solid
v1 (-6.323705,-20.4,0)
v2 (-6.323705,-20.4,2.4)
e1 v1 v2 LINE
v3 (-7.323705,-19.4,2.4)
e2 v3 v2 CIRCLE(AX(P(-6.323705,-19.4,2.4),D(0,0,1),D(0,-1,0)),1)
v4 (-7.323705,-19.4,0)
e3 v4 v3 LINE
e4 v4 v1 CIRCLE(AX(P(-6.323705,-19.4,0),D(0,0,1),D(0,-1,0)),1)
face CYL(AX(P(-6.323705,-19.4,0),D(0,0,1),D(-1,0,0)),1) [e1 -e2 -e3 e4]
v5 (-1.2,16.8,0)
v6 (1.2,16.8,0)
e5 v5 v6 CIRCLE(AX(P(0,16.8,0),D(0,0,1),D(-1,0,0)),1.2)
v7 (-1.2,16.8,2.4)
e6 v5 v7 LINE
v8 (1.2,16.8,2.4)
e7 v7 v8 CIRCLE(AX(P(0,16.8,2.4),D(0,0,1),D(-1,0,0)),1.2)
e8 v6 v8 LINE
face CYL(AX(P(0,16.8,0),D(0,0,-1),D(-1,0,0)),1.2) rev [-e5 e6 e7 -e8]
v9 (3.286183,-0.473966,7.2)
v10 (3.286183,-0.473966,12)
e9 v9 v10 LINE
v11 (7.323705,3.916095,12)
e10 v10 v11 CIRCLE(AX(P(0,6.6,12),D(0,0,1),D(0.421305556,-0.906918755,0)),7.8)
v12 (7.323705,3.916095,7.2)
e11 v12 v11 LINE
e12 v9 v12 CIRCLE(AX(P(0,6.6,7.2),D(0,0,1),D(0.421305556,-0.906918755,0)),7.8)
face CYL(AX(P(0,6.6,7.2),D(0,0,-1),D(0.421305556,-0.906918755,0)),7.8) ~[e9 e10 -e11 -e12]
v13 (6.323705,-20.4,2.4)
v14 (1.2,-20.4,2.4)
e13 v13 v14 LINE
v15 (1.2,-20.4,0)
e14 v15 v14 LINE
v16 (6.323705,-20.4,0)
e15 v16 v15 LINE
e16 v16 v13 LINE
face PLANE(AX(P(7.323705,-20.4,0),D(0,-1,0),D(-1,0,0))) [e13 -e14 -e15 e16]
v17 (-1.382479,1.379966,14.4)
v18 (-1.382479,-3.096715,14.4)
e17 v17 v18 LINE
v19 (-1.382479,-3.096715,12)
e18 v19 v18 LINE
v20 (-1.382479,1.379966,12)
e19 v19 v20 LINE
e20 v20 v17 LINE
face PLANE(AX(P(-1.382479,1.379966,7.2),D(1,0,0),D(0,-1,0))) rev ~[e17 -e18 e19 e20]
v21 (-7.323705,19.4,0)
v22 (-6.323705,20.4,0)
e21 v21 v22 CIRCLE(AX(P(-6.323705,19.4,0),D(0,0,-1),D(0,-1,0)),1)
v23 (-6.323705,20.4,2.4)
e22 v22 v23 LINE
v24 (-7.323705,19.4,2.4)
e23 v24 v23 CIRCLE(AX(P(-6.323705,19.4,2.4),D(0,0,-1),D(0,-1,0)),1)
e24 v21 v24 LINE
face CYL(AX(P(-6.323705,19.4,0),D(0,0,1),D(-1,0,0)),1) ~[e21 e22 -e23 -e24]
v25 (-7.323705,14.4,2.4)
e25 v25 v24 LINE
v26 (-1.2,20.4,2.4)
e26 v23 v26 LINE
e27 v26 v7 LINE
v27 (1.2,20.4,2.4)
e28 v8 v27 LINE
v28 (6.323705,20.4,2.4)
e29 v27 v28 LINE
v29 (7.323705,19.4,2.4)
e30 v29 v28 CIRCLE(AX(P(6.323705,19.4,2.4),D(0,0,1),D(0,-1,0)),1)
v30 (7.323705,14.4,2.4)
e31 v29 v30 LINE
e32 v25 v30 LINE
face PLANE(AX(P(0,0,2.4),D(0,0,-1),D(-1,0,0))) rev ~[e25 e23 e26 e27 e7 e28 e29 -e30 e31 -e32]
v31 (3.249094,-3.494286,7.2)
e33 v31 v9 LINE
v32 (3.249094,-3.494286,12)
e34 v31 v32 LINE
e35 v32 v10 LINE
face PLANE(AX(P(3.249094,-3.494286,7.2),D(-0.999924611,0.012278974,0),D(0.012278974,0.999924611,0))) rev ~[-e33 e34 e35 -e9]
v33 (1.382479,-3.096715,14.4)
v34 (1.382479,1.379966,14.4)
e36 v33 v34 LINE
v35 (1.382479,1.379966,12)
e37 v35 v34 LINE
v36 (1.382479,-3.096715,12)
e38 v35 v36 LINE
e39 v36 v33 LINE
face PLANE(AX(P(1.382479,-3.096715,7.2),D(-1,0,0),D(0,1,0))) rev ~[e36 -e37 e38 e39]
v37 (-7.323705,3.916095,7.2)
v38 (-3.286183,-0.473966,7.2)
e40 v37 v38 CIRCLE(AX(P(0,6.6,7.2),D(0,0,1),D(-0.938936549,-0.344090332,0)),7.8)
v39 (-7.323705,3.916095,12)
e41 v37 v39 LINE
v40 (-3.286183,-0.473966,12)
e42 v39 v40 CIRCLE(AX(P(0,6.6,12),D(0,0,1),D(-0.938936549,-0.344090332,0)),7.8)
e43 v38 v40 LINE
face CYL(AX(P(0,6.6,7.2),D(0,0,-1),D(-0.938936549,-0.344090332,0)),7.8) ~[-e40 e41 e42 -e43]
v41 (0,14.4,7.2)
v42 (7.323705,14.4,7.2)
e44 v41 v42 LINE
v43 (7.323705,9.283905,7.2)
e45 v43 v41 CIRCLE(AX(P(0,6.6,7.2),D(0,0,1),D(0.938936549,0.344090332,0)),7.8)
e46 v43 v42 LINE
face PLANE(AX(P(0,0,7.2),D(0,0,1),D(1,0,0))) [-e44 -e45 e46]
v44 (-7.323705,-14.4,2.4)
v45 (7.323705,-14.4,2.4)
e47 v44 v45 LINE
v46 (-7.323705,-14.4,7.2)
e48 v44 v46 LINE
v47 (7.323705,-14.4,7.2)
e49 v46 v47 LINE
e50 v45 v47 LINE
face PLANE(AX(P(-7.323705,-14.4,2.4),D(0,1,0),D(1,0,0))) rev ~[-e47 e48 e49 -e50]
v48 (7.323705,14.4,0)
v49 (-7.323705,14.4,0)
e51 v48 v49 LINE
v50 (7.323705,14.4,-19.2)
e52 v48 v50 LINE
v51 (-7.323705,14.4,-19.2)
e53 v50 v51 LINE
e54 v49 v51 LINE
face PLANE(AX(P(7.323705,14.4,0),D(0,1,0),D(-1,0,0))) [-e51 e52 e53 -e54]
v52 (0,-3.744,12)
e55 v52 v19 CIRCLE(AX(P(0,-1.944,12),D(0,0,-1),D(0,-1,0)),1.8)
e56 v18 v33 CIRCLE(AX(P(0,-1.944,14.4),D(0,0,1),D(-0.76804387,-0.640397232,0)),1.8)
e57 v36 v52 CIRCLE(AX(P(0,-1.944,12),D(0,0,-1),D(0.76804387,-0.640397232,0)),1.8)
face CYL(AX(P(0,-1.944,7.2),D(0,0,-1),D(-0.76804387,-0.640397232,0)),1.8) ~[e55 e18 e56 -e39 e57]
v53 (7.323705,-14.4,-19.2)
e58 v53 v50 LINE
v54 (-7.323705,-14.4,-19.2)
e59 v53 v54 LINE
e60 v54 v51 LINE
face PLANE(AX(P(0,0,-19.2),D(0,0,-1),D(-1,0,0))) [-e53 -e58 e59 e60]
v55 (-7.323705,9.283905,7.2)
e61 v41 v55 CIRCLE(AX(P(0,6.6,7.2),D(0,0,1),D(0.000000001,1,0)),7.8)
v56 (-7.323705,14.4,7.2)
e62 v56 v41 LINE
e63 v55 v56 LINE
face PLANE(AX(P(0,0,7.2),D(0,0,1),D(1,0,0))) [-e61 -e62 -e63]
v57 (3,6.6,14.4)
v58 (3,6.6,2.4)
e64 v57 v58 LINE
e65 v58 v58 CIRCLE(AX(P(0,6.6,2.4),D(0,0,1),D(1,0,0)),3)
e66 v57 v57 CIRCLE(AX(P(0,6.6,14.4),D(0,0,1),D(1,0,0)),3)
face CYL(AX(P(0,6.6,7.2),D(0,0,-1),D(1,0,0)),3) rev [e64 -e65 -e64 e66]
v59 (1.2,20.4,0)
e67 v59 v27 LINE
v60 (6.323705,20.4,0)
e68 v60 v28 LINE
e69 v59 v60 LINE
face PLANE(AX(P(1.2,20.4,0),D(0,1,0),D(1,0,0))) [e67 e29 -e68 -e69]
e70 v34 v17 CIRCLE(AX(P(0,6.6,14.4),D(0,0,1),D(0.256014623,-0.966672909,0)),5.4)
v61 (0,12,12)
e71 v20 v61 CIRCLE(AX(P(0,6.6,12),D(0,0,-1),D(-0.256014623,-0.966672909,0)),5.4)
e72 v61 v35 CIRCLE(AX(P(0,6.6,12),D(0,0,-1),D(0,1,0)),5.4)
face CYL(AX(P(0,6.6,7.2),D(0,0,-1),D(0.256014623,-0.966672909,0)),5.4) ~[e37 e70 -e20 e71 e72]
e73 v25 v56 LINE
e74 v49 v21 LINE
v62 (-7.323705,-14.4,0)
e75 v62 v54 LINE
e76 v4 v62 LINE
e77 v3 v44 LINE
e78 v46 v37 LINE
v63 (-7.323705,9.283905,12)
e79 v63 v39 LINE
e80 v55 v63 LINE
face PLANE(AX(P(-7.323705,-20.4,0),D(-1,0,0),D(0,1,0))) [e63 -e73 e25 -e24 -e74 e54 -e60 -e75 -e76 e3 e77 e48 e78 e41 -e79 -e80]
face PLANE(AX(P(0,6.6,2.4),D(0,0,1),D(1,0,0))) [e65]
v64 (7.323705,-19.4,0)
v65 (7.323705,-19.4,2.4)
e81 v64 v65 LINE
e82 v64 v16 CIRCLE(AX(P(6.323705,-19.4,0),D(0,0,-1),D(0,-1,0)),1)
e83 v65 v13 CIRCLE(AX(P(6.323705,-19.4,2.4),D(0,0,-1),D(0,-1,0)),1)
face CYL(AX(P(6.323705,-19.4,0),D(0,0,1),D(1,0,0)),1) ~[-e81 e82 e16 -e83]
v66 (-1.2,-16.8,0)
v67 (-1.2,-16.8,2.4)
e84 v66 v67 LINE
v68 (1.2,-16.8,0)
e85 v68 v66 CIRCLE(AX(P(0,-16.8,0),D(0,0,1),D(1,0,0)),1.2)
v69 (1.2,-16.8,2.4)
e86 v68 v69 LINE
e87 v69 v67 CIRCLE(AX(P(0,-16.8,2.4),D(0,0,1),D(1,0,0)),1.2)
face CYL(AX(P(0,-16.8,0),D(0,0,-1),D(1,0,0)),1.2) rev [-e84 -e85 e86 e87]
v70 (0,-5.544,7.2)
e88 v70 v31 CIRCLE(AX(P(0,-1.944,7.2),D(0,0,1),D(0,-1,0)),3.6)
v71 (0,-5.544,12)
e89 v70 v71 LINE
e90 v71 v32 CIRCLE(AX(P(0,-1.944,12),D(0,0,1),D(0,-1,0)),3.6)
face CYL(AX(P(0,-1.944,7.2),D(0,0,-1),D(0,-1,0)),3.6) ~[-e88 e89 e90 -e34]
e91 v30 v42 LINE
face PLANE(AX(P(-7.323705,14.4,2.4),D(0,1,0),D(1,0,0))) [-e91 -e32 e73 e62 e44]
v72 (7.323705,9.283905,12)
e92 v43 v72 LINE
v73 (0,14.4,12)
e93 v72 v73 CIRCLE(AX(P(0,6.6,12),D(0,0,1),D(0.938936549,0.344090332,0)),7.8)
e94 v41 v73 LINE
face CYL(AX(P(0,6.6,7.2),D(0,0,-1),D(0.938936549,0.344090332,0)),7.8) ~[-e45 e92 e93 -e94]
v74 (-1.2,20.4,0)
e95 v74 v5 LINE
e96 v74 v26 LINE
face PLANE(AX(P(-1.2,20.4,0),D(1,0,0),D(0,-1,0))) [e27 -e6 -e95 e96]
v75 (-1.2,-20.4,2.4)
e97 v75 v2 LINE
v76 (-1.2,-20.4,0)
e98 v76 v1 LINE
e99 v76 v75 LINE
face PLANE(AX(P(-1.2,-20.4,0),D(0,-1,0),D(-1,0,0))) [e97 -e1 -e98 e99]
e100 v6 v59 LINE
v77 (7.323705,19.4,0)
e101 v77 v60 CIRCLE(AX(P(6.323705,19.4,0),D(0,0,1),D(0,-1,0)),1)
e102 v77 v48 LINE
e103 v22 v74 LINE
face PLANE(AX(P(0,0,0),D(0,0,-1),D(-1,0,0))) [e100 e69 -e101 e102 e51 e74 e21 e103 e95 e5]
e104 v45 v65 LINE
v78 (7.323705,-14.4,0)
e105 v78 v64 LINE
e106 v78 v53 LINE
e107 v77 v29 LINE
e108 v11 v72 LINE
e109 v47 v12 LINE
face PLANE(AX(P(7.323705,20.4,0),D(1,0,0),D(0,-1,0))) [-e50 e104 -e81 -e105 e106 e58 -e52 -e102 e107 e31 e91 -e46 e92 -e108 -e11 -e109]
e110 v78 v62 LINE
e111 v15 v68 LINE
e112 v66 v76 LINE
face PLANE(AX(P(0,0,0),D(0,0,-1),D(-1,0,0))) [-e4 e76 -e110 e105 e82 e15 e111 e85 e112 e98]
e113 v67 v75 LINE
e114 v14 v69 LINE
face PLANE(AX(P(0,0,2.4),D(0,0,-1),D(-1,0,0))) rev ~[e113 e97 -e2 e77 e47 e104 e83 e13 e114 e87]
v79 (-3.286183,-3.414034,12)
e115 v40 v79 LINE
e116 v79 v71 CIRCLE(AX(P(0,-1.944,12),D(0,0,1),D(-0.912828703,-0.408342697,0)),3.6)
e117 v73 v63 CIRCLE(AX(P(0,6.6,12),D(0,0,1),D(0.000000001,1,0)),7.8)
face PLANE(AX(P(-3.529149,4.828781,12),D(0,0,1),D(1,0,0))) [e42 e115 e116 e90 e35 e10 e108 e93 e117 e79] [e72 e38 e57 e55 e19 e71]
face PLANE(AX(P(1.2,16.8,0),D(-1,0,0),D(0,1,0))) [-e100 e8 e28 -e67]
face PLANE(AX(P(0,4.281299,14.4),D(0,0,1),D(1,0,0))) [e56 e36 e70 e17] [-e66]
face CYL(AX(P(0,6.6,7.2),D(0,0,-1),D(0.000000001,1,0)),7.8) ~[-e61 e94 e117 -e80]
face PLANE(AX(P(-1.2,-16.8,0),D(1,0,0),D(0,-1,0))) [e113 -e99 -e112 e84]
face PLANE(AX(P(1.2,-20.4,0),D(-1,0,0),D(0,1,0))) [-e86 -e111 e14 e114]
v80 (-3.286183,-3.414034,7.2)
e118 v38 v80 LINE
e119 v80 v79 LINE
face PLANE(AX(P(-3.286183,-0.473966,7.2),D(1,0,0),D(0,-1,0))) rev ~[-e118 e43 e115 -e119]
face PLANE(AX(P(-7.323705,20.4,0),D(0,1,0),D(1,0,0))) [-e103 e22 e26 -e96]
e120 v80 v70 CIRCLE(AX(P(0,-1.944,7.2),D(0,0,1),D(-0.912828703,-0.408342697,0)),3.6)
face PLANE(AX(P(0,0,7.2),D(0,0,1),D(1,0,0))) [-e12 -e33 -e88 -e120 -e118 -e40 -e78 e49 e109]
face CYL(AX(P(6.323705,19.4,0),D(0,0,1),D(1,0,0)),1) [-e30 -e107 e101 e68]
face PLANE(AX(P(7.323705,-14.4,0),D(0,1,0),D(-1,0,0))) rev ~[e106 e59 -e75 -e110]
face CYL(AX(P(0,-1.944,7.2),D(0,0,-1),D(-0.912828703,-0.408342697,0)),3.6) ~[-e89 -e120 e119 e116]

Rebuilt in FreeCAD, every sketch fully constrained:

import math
import FreeCAD as App
import Part
import Sketcher
Q = App.Units.Quantity


def edges_at(feature, points):
    """Names of the edges that pass closest to the given points."""
    edges = feature.Shape.Edges
    near = lambda p: min(range(len(edges)), key=lambda i: edges[i].distToShape(Part.Vertex(*p))[0])
    return sorted({f"Edge{near(p) + 1}" for p in points})

doc = App.newDocument("Part")
body = doc.addObject("PartDesign::Body", "Body")

sketch1 = body.newObject("Sketcher::SketchObject", "Sketch")
sketch1.AttachmentSupport = (doc.getObject("XY_Plane"), [""])
sketch1.MapMode = "FlatFace"
sketch1.addGeometry([
    Part.LineSegment(App.Vector(-1.2, 20.4, 0), App.Vector(-7.323705, 20.4, 0)),
    Part.LineSegment(App.Vector(-7.323705, 20.4, 0), App.Vector(-7.323705, -20.4, 0)),
    Part.LineSegment(App.Vector(-7.323705, -20.4, 0), App.Vector(-1.2, -20.4, 0)),
    Part.LineSegment(App.Vector(-1.2, -20.4, 0), App.Vector(-1.2, -16.8, 0)),
    Part.ArcOfCircle(Part.Circle(App.Vector(0, -16.8, 0), App.Vector(0, 0, 1), 1.2), math.radians(0), math.radians(180)),
    Part.LineSegment(App.Vector(1.2, -16.8, 0), App.Vector(1.2, -20.4, 0)),
    Part.LineSegment(App.Vector(1.2, -20.4, 0), App.Vector(7.323705, -20.4, 0)),
    Part.LineSegment(App.Vector(7.323705, -20.4, 0), App.Vector(7.323705, 20.4, 0)),
    Part.LineSegment(App.Vector(7.323705, 20.4, 0), App.Vector(1.2, 20.4, 0)),
    Part.LineSegment(App.Vector(1.2, 20.4, 0), App.Vector(1.2, 16.8, 0)),
    Part.ArcOfCircle(Part.Circle(App.Vector(0, 16.8, 0), App.Vector(0, 0, 1), 1.2), math.radians(180), math.radians(360)),
    Part.LineSegment(App.Vector(-1.2, 16.8, 0), App.Vector(-1.2, 20.4, 0)),
], False)
sketch1.addConstraint([
    Sketcher.Constraint("Coincident", 0, 2, 1, 1),
    Sketcher.Constraint("Coincident", 1, 2, 2, 1),
    Sketcher.Constraint("Coincident", 2, 2, 3, 1),
    Sketcher.Constraint("Tangent", 3, 2, 4, 2),
    Sketcher.Constraint("Tangent", 4, 1, 5, 1),
    Sketcher.Constraint("Coincident", 5, 2, 6, 1),
    Sketcher.Constraint("Coincident", 6, 2, 7, 1),
    Sketcher.Constraint("Coincident", 7, 2, 8, 1),
    Sketcher.Constraint("Coincident", 8, 2, 9, 1),
    Sketcher.Constraint("Tangent", 9, 2, 10, 2),
    Sketcher.Constraint("Tangent", 10, 1, 11, 1),
    Sketcher.Constraint("Coincident", 11, 2, 0, 1),
    Sketcher.Constraint("Horizontal", 0),
    Sketcher.Constraint("Vertical", 1),
    Sketcher.Constraint("Horizontal", 2),
    Sketcher.Constraint("Vertical", 3),
    Sketcher.Constraint("Vertical", 5),
    Sketcher.Constraint("Horizontal", 6),
    Sketcher.Constraint("Vertical", 7),
    Sketcher.Constraint("Horizontal", 8),
    Sketcher.Constraint("Vertical", 9),
    Sketcher.Constraint("Vertical", 11),
    Sketcher.Constraint("Equal", 4, 10),
    Sketcher.Constraint("Symmetric", 4, 3, 10, 3, -1, 1),
    Sketcher.Constraint("Symmetric", 0, 2, 6, 2, -1, 1),
    Sketcher.Constraint("Symmetric", 2, 2, 5, 2, -2),
    Sketcher.Constraint("Horizontal", 0, 2, 7, 2),
    Sketcher.Constraint("Radius", 4, Q("1.2 mm")),
    Sketcher.Constraint("DistanceY", 1, 2, 1, 1, Q("40.8 mm")),
    Sketcher.Constraint("DistanceY", 3, 1, 3, 2, Q("3.6 mm")),
    Sketcher.Constraint("DistanceX", 0, 2, 0, 1, Q("6.123705 mm")),
])
pad1 = body.newObject("PartDesign::Pad", "Pad")
pad1.Profile = sketch1
pad1.Length = 2.4

sketch2 = body.newObject("Sketcher::SketchObject", "Sketch001")
sketch2.AttachmentSupport = (doc.getObject("XY_Plane"), [""])
sketch2.MapMode = "FlatFace"
sketch2.AttachmentOffset = App.Placement(App.Vector(0, 0, 2.4), App.Rotation())
sketch2.addGeometry([
    Part.LineSegment(App.Vector(-7.323705, 14.4, 0), App.Vector(-7.323705, -14.4, 0)),
    Part.LineSegment(App.Vector(-7.323705, -14.4, 0), App.Vector(7.323705, -14.4, 0)),
    Part.LineSegment(App.Vector(7.323705, -14.4, 0), App.Vector(7.323705, 14.4, 0)),
    Part.LineSegment(App.Vector(7.323705, 14.4, 0), App.Vector(-7.323705, 14.4, 0)),
], False)
sketch2.addConstraint([
    Sketcher.Constraint("Coincident", 0, 2, 1, 1),
    Sketcher.Constraint("Coincident", 1, 2, 2, 1),
    Sketcher.Constraint("Coincident", 2, 2, 3, 1),
    Sketcher.Constraint("Coincident", 3, 2, 0, 1),
    Sketcher.Constraint("Vertical", 0),
    Sketcher.Constraint("Horizontal", 1),
    Sketcher.Constraint("Vertical", 2),
    Sketcher.Constraint("Horizontal", 3),
    Sketcher.Constraint("Symmetric", 0, 2, 2, 2, -1, 1),
    Sketcher.Constraint("DistanceY", 0, 2, 0, 1, Q("28.8 mm")),
    Sketcher.Constraint("DistanceX", 1, 1, 1, 2, Q("14.64741 mm")),
])
pad2 = body.newObject("PartDesign::Pad", "Pad001")
pad2.Profile = sketch2
pad2.Length = 4.8

sketch3 = body.newObject("Sketcher::SketchObject", "Sketch002")
sketch3.AttachmentSupport = (doc.getObject("XY_Plane"), [""])
sketch3.MapMode = "FlatFace"
sketch3.AttachmentOffset = App.Placement(App.Vector(0, 0, 7.2), App.Rotation())
sketch3.addGeometry([
    Part.ArcOfCircle(Part.Circle(App.Vector(0, 6.6, 0), App.Vector(0, 0, 1), 7.8), math.radians(90), math.radians(159.873724)),
    Part.LineSegment(App.Vector(-7.323705, 9.283905, 0), App.Vector(-7.323705, 3.916095, 0)),
    Part.ArcOfCircle(Part.Circle(App.Vector(0, 6.6, 0), App.Vector(0, 0, 1), 7.8), math.radians(-159.873724), math.radians(-114.91704)),
    Part.LineSegment(App.Vector(-3.286183, -0.473966, 0), App.Vector(-3.286183, -3.414034, 0)),
    Part.ArcOfCircle(Part.Circle(App.Vector(0, -1.944, 0), App.Vector(0, 0, 1), 3.6), math.radians(-155.899232), math.radians(-90)),
    Part.ArcOfCircle(Part.Circle(App.Vector(0, -1.944, 0), App.Vector(0, 0, 1), 3.6), math.radians(-90), math.radians(-25.50787)),
    Part.LineSegment(App.Vector(3.249094, -3.494286, 0), App.Vector(3.286183, -0.473966, 0)),
    Part.ArcOfCircle(Part.Circle(App.Vector(0, 6.6, 0), App.Vector(0, 0, 1), 7.8), math.radians(-65.08296), math.radians(-20.126276)),
    Part.LineSegment(App.Vector(7.323705, 3.916095, 0), App.Vector(7.323705, 9.283905, 0)),
    Part.ArcOfCircle(Part.Circle(App.Vector(0, 6.6, 0), App.Vector(0, 0, 1), 7.8), math.radians(20.126276), math.radians(90)),
    Part.ArcOfCircle(Part.Circle(App.Vector(0, -1.944, 0), App.Vector(0, 0, 1), 1.8), math.radians(-140.178554), math.radians(-90)),
    Part.LineSegment(App.Vector(-1.382479, -3.096715, 0), App.Vector(-1.382479, 1.379966, 0)),
    Part.ArcOfCircle(Part.Circle(App.Vector(0, 6.6, 0), App.Vector(0, 0, 1), 5.4), math.radians(90), math.radians(255.166285)),
    Part.ArcOfCircle(Part.Circle(App.Vector(0, 6.6, 0), App.Vector(0, 0, 1), 5.4), math.radians(-75.166285), math.radians(90)),
    Part.LineSegment(App.Vector(1.382479, 1.379966, 0), App.Vector(1.382479, -3.096715, 0)),
    Part.ArcOfCircle(Part.Circle(App.Vector(0, -1.944, 0), App.Vector(0, 0, 1), 1.8), math.radians(-90), math.radians(-39.821446)),
], False)
sketch3.addConstraint([
    Sketcher.Constraint("Coincident", 0, 2, 1, 1),
    Sketcher.Constraint("Coincident", 1, 2, 2, 1),
    Sketcher.Constraint("Coincident", 2, 2, 3, 1),
    Sketcher.Constraint("Coincident", 3, 2, 4, 1),
    Sketcher.Constraint("Tangent", 4, 2, 5, 1),
    Sketcher.Constraint("Coincident", 5, 2, 6, 1),
    Sketcher.Constraint("Coincident", 6, 2, 7, 1),
    Sketcher.Constraint("Coincident", 7, 2, 8, 1),
    Sketcher.Constraint("Coincident", 8, 2, 9, 1),
    Sketcher.Constraint("Tangent", 9, 2, 0, 1),
    Sketcher.Constraint("Coincident", 10, 1, 11, 1),
    Sketcher.Constraint("Coincident", 11, 2, 12, 2),
    Sketcher.Constraint("Tangent", 12, 1, 13, 2),
    Sketcher.Constraint("Coincident", 13, 1, 14, 1),
    Sketcher.Constraint("Coincident", 14, 2, 15, 2),
    Sketcher.Constraint("Tangent", 15, 1, 10, 2),
    Sketcher.Constraint("Vertical", 1),
    Sketcher.Constraint("Vertical", 3),
    Sketcher.Constraint("Vertical", 8),
    Sketcher.Constraint("Vertical", 11),
    Sketcher.Constraint("Vertical", 14),
    Sketcher.Constraint("Coincident", 2, 3, 0, 3),
    Sketcher.Constraint("Coincident", 7, 3, 0, 3),
    Sketcher.Constraint("Coincident", 10, 3, 4, 3),
    Sketcher.Constraint("Coincident", 12, 3, 0, 3),
    Sketcher.Constraint("Equal", 0, 2),
    Sketcher.Constraint("Equal", 4, 5),
    Sketcher.Constraint("Equal", 2, 7),
    Sketcher.Constraint("Equal", 7, 9),
    Sketcher.Constraint("Equal", 12, 13),
    Sketcher.Constraint("Equal", 10, 15),
    Sketcher.Constraint("Symmetric", 2, 2, 6, 2, -2),
    Sketcher.Constraint("Symmetric", 10, 1, 14, 2, -2),
    Sketcher.Constraint("PointOnObject", 4, 2, -2),
    Sketcher.Constraint("PointOnObject", 9, 2, -2),
    Sketcher.Constraint("PointOnObject", 12, 1, -2),
    Sketcher.Constraint("PointOnObject", 15, 1, -2),
    Sketcher.Constraint("Horizontal", 1, 2, 7, 2),
    Sketcher.Constraint("Radius", 0, Q("7.8 mm")),
    Sketcher.Constraint("Radius", 4, Q("3.6 mm")),
    Sketcher.Constraint("Radius", 10, Q("1.8 mm")),
    Sketcher.Constraint("Radius", 12, Q("5.4 mm")),
    Sketcher.Constraint("DistanceY", -1, 1, 12, 1, Q("12 mm")),
    Sketcher.Constraint("DistanceY", 4, 3, -1, 1, Q("1.944 mm")),
    Sketcher.Constraint("DistanceY", 1, 2, 1, 1, Q("5.367809 mm")),
    Sketcher.Constraint("DistanceY", 11, 1, 11, 2, Q("4.476681 mm")),
    Sketcher.Constraint("DistanceY", 3, 2, 3, 1, Q("2.940067 mm")),
    Sketcher.Constraint("DistanceX", 5, 2, 6, 2, Q("0.037089 mm")),
])
pad3 = body.newObject("PartDesign::Pad", "Pad002")
pad3.Profile = sketch3
pad3.Length = 4.8

sketch4 = body.newObject("Sketcher::SketchObject", "Sketch003")
sketch4.AttachmentSupport = (doc.getObject("XY_Plane"), [""])
sketch4.MapMode = "FlatFace"
sketch4.AttachmentOffset = App.Placement(App.Vector(0, 0, 7.2), App.Rotation())
sketch4.addGeometry([
    Part.LineSegment(App.Vector(-1.382479, 1.379966, 0), App.Vector(-1.382479, -3.096715, 0)),
    Part.ArcOfCircle(Part.Circle(App.Vector(0, -1.944, 0), App.Vector(0, 0, 1), 1.8), math.radians(-140.178554), math.radians(-39.821446)),
    Part.LineSegment(App.Vector(1.382479, -3.096715, 0), App.Vector(1.382479, 1.379966, 0)),
    Part.ArcOfCircle(Part.Circle(App.Vector(0, 6.6, 0), App.Vector(0, 0, 1), 5.4), math.radians(-75.166285), math.radians(255.166285)),
    Part.Circle(App.Vector(0, 6.6, 0), App.Vector(0, 0, 1), 3),
], False)
sketch4.addConstraint([
    Sketcher.Constraint("Coincident", 0, 2, 1, 1),
    Sketcher.Constraint("Coincident", 1, 2, 2, 1),
    Sketcher.Constraint("Coincident", 2, 2, 3, 1),
    Sketcher.Constraint("Coincident", 3, 2, 0, 1),
    Sketcher.Constraint("Vertical", 0),
    Sketcher.Constraint("Vertical", 2),
    Sketcher.Constraint("Coincident", 4, 3, 3, 3),
    Sketcher.Constraint("Symmetric", 0, 2, 1, 2, -2),
    Sketcher.Constraint("PointOnObject", 3, 3, -2),
    Sketcher.Constraint("Diameter", 4, Q("6 mm")),
    Sketcher.Constraint("Radius", 1, Q("1.8 mm")),
    Sketcher.Constraint("Radius", 3, Q("5.4 mm")),
    Sketcher.Constraint("DistanceY", -1, 1, 3, 3, Q("6.6 mm")),
    Sketcher.Constraint("DistanceY", 1, 3, -1, 1, Q("1.944 mm")),
    Sketcher.Constraint("DistanceY", 0, 2, 0, 1, Q("4.476681 mm")),
])
pad4 = body.newObject("PartDesign::Pad", "Pad003")
pad4.Profile = sketch4
pad4.Length = 7.2

sketch5 = body.newObject("Sketcher::SketchObject", "Sketch004")
sketch5.AttachmentSupport = (doc.getObject("XY_Plane"), [""])
sketch5.MapMode = "FlatFace"
sketch5.AttachmentOffset = App.Placement(App.Vector(0, 0, 2.4), App.Rotation())
sketch5.addGeometry(Part.Circle(App.Vector(0, 6.6, 0), App.Vector(0, 0, 1), 3), False)
sketch5.addConstraint([
    Sketcher.Constraint("PointOnObject", 0, 3, -2),
    Sketcher.Constraint("Diameter", 0, Q("6 mm")),
    Sketcher.Constraint("DistanceY", -1, 1, 0, 3, Q("6.6 mm")),
])
pocket1 = body.newObject("PartDesign::Pocket", "Pocket")
pocket1.Profile = sketch5
pocket1.Length = 4.8
pocket1.Reversed = True

sketch6 = body.newObject("Sketcher::SketchObject", "Sketch005")
sketch6.AttachmentSupport = (doc.getObject("XY_Plane"), [""])
sketch6.MapMode = "FlatFace"
sketch6.addGeometry([
    Part.LineSegment(App.Vector(7.323705, 14.4, 0), App.Vector(7.323705, -14.4, 0)),
    Part.LineSegment(App.Vector(7.323705, -14.4, 0), App.Vector(-7.323705, -14.4, 0)),
    Part.LineSegment(App.Vector(-7.323705, -14.4, 0), App.Vector(-7.323705, 14.4, 0)),
    Part.LineSegment(App.Vector(-7.323705, 14.4, 0), App.Vector(7.323705, 14.4, 0)),
], False)
sketch6.addConstraint([
    Sketcher.Constraint("Coincident", 0, 2, 1, 1),
    Sketcher.Constraint("Coincident", 1, 2, 2, 1),
    Sketcher.Constraint("Coincident", 2, 2, 3, 1),
    Sketcher.Constraint("Coincident", 3, 2, 0, 1),
    Sketcher.Constraint("Vertical", 0),
    Sketcher.Constraint("Horizontal", 1),
    Sketcher.Constraint("Vertical", 2),
    Sketcher.Constraint("Horizontal", 3),
    Sketcher.Constraint("Symmetric", 0, 2, 2, 2, -1, 1),
    Sketcher.Constraint("DistanceY", 0, 2, 0, 1, Q("28.8 mm")),
    Sketcher.Constraint("DistanceX", 1, 2, 1, 1, Q("14.64741 mm")),
])
pad5 = body.newObject("PartDesign::Pad", "Pad004")
pad5.Profile = sketch6
pad5.Length = 19.2
pad5.Reversed = True
doc.recompute()

fillet = body.newObject("PartDesign::Fillet", "Fillet")
fillet.Base = (pad5, edges_at(pad5, [
    (7.324, 20.4, 1.2),
    (7.324, -20.4, 1.2),
    (-7.324, -20.4, 1.2),
    (-7.324, 20.4, 1.2),
]))
fillet.Radius = 1

doc.recompute()
